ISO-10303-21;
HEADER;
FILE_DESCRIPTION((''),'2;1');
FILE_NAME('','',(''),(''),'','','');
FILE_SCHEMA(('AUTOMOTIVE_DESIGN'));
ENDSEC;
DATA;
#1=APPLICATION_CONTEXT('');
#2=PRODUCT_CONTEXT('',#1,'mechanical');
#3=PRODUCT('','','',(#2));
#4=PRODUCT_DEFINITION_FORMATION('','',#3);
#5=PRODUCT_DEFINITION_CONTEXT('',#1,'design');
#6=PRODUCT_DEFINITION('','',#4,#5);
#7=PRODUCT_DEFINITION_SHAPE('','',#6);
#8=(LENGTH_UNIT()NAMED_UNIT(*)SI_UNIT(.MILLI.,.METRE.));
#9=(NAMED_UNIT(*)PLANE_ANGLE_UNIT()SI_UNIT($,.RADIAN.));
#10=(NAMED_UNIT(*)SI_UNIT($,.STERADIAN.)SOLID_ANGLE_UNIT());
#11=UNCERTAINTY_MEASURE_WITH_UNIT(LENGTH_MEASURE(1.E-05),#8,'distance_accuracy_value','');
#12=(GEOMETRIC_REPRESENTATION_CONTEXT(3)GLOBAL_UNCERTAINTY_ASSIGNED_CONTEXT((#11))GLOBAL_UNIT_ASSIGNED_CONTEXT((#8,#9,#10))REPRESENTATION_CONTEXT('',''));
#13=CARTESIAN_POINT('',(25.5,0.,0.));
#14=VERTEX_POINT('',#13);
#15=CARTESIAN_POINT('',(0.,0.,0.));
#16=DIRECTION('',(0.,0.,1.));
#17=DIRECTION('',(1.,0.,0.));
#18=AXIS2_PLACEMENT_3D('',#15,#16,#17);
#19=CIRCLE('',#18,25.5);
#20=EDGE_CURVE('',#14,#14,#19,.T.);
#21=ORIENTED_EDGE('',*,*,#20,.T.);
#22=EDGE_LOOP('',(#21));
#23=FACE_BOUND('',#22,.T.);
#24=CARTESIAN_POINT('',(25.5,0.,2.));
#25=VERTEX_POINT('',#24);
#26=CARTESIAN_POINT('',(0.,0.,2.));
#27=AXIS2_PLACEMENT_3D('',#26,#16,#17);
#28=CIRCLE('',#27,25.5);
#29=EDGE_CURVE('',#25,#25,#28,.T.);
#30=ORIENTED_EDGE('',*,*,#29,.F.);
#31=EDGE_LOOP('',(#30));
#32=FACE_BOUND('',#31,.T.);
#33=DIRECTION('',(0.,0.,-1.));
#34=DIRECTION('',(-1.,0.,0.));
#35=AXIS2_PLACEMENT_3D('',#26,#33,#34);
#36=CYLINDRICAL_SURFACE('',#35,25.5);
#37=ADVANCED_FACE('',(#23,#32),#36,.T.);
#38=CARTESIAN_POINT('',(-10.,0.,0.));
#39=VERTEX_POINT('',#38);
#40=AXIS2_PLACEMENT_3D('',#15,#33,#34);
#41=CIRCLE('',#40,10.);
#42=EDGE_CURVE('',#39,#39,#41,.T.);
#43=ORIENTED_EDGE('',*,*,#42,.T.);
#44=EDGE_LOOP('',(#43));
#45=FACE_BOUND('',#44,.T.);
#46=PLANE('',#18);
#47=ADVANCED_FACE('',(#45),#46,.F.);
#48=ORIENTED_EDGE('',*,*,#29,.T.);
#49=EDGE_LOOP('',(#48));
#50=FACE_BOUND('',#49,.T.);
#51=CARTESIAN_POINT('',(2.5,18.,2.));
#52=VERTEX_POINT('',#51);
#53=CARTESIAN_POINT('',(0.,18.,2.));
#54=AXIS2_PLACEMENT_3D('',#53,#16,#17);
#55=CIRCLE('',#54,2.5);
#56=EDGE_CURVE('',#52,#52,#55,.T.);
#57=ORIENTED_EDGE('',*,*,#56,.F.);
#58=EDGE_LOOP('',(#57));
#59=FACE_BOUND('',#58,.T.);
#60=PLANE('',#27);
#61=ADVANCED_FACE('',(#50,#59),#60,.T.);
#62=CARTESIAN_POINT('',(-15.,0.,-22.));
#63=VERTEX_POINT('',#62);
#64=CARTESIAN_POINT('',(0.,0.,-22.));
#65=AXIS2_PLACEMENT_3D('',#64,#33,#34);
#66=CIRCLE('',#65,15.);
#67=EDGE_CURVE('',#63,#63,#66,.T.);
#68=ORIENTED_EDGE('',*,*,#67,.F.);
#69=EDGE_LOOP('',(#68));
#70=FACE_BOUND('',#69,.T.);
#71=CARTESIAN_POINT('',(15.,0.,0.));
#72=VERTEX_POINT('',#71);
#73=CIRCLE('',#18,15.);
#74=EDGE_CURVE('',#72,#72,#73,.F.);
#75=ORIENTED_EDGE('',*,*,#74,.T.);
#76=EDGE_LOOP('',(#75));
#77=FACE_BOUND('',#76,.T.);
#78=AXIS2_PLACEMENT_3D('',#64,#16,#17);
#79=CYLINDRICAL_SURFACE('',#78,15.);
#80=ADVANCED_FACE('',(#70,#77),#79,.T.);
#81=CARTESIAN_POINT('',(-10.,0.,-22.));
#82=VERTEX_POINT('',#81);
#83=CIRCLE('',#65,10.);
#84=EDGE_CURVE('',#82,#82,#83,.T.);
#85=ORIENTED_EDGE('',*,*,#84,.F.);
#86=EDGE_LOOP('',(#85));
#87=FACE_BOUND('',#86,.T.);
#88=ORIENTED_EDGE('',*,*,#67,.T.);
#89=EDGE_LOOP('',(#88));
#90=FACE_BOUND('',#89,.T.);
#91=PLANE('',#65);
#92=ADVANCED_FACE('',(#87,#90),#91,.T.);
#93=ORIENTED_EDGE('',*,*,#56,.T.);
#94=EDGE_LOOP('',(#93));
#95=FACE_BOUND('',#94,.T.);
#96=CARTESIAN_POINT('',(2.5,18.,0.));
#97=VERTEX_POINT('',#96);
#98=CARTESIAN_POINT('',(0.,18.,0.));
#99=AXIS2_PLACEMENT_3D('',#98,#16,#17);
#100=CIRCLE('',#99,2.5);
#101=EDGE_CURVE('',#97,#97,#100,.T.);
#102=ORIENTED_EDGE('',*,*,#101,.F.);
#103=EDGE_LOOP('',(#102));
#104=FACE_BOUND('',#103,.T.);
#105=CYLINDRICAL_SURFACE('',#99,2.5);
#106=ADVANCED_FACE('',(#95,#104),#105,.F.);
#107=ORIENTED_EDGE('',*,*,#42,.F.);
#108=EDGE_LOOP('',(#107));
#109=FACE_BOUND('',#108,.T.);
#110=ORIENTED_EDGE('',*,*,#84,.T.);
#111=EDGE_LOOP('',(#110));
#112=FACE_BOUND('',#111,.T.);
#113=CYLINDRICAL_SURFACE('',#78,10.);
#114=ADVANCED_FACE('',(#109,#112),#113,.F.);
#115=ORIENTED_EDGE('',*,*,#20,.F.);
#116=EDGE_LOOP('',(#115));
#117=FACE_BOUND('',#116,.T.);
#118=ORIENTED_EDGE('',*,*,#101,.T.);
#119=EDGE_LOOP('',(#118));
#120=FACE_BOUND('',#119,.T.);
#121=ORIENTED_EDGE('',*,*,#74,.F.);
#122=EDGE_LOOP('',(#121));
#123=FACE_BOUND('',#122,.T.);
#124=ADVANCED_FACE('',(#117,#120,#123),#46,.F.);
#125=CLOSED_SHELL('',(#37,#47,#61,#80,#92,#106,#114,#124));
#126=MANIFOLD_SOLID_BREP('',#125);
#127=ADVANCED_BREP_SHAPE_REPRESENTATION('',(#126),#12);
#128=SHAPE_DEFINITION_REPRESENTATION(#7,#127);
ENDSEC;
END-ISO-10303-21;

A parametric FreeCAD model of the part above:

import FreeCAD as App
import Part
import Sketcher

V = App.Vector
Q = App.Units.Quantity

doc = App.newDocument("Part")
body = doc.addObject("PartDesign::Body", "Body")

# Sketch on XY plane
sketch1 = body.newObject("Sketcher::SketchObject", "Sketch")
sketch1.AttachmentSupport = (doc.getObject("XY_Plane"), [""])
sketch1.MapMode = "FlatFace"
sketch1.addGeometry(Part.Circle(V(0, 0, 0), V(0, 0, 1), 25.5), False)
sketch1.addConstraint([
    Sketcher.Constraint("Coincident", 0, 3, -1, 1),
    Sketcher.Constraint("Diameter", 0, Q("51 mm")),
])
pad1 = body.newObject("PartDesign::Pad", "Pad")
pad1.Profile = sketch1
pad1.Length = 2

# Sketch on XY plane
sketch2 = body.newObject("Sketcher::SketchObject", "Sketch001")
sketch2.AttachmentSupport = (doc.getObject("XY_Plane"), [""])
sketch2.MapMode = "FlatFace"
sketch2.addGeometry([
    Part.Circle(V(0, 0, 0), V(0, 0, 1), 15),
    Part.Circle(V(0, 0, 0), V(0, 0, 1), 10),
], False)
sketch2.addConstraint([
    Sketcher.Constraint("Coincident", 0, 3, -1, 1),
    Sketcher.Constraint("Coincident", 1, 3, -1, 1),
    Sketcher.Constraint("Diameter", 0, Q("30 mm")),
    Sketcher.Constraint("Diameter", 1, Q("20 mm")),
])
pad2 = body.newObject("PartDesign::Pad", "Pad001")
pad2.Profile = sketch2
pad2.Length = 22
pad2.Reversed = True

# Sketch on XY plane
sketch3 = body.newObject("Sketcher::SketchObject", "Sketch002")
sketch3.AttachmentSupport = (doc.getObject("XY_Plane"), [""])
sketch3.MapMode = "FlatFace"
sketch3.AttachmentOffset = App.Placement(V(0, 0, 2), App.Rotation())
sketch3.addGeometry(Part.Circle(V(0, 18, 0), V(0, 0, 1), 2.5), False)
sketch3.addConstraint([
    Sketcher.Constraint("PointOnObject", 0, 3, -2),
    Sketcher.Constraint("Diameter", 0, Q("5 mm")),
    Sketcher.Constraint("DistanceY", -1, 1, 0, 3, Q("18 mm")),
])
pocket1 = body.newObject("PartDesign::Pocket", "Pocket")
pocket1.Profile = sketch3
pocket1.Length = 2

doc.recompute()
